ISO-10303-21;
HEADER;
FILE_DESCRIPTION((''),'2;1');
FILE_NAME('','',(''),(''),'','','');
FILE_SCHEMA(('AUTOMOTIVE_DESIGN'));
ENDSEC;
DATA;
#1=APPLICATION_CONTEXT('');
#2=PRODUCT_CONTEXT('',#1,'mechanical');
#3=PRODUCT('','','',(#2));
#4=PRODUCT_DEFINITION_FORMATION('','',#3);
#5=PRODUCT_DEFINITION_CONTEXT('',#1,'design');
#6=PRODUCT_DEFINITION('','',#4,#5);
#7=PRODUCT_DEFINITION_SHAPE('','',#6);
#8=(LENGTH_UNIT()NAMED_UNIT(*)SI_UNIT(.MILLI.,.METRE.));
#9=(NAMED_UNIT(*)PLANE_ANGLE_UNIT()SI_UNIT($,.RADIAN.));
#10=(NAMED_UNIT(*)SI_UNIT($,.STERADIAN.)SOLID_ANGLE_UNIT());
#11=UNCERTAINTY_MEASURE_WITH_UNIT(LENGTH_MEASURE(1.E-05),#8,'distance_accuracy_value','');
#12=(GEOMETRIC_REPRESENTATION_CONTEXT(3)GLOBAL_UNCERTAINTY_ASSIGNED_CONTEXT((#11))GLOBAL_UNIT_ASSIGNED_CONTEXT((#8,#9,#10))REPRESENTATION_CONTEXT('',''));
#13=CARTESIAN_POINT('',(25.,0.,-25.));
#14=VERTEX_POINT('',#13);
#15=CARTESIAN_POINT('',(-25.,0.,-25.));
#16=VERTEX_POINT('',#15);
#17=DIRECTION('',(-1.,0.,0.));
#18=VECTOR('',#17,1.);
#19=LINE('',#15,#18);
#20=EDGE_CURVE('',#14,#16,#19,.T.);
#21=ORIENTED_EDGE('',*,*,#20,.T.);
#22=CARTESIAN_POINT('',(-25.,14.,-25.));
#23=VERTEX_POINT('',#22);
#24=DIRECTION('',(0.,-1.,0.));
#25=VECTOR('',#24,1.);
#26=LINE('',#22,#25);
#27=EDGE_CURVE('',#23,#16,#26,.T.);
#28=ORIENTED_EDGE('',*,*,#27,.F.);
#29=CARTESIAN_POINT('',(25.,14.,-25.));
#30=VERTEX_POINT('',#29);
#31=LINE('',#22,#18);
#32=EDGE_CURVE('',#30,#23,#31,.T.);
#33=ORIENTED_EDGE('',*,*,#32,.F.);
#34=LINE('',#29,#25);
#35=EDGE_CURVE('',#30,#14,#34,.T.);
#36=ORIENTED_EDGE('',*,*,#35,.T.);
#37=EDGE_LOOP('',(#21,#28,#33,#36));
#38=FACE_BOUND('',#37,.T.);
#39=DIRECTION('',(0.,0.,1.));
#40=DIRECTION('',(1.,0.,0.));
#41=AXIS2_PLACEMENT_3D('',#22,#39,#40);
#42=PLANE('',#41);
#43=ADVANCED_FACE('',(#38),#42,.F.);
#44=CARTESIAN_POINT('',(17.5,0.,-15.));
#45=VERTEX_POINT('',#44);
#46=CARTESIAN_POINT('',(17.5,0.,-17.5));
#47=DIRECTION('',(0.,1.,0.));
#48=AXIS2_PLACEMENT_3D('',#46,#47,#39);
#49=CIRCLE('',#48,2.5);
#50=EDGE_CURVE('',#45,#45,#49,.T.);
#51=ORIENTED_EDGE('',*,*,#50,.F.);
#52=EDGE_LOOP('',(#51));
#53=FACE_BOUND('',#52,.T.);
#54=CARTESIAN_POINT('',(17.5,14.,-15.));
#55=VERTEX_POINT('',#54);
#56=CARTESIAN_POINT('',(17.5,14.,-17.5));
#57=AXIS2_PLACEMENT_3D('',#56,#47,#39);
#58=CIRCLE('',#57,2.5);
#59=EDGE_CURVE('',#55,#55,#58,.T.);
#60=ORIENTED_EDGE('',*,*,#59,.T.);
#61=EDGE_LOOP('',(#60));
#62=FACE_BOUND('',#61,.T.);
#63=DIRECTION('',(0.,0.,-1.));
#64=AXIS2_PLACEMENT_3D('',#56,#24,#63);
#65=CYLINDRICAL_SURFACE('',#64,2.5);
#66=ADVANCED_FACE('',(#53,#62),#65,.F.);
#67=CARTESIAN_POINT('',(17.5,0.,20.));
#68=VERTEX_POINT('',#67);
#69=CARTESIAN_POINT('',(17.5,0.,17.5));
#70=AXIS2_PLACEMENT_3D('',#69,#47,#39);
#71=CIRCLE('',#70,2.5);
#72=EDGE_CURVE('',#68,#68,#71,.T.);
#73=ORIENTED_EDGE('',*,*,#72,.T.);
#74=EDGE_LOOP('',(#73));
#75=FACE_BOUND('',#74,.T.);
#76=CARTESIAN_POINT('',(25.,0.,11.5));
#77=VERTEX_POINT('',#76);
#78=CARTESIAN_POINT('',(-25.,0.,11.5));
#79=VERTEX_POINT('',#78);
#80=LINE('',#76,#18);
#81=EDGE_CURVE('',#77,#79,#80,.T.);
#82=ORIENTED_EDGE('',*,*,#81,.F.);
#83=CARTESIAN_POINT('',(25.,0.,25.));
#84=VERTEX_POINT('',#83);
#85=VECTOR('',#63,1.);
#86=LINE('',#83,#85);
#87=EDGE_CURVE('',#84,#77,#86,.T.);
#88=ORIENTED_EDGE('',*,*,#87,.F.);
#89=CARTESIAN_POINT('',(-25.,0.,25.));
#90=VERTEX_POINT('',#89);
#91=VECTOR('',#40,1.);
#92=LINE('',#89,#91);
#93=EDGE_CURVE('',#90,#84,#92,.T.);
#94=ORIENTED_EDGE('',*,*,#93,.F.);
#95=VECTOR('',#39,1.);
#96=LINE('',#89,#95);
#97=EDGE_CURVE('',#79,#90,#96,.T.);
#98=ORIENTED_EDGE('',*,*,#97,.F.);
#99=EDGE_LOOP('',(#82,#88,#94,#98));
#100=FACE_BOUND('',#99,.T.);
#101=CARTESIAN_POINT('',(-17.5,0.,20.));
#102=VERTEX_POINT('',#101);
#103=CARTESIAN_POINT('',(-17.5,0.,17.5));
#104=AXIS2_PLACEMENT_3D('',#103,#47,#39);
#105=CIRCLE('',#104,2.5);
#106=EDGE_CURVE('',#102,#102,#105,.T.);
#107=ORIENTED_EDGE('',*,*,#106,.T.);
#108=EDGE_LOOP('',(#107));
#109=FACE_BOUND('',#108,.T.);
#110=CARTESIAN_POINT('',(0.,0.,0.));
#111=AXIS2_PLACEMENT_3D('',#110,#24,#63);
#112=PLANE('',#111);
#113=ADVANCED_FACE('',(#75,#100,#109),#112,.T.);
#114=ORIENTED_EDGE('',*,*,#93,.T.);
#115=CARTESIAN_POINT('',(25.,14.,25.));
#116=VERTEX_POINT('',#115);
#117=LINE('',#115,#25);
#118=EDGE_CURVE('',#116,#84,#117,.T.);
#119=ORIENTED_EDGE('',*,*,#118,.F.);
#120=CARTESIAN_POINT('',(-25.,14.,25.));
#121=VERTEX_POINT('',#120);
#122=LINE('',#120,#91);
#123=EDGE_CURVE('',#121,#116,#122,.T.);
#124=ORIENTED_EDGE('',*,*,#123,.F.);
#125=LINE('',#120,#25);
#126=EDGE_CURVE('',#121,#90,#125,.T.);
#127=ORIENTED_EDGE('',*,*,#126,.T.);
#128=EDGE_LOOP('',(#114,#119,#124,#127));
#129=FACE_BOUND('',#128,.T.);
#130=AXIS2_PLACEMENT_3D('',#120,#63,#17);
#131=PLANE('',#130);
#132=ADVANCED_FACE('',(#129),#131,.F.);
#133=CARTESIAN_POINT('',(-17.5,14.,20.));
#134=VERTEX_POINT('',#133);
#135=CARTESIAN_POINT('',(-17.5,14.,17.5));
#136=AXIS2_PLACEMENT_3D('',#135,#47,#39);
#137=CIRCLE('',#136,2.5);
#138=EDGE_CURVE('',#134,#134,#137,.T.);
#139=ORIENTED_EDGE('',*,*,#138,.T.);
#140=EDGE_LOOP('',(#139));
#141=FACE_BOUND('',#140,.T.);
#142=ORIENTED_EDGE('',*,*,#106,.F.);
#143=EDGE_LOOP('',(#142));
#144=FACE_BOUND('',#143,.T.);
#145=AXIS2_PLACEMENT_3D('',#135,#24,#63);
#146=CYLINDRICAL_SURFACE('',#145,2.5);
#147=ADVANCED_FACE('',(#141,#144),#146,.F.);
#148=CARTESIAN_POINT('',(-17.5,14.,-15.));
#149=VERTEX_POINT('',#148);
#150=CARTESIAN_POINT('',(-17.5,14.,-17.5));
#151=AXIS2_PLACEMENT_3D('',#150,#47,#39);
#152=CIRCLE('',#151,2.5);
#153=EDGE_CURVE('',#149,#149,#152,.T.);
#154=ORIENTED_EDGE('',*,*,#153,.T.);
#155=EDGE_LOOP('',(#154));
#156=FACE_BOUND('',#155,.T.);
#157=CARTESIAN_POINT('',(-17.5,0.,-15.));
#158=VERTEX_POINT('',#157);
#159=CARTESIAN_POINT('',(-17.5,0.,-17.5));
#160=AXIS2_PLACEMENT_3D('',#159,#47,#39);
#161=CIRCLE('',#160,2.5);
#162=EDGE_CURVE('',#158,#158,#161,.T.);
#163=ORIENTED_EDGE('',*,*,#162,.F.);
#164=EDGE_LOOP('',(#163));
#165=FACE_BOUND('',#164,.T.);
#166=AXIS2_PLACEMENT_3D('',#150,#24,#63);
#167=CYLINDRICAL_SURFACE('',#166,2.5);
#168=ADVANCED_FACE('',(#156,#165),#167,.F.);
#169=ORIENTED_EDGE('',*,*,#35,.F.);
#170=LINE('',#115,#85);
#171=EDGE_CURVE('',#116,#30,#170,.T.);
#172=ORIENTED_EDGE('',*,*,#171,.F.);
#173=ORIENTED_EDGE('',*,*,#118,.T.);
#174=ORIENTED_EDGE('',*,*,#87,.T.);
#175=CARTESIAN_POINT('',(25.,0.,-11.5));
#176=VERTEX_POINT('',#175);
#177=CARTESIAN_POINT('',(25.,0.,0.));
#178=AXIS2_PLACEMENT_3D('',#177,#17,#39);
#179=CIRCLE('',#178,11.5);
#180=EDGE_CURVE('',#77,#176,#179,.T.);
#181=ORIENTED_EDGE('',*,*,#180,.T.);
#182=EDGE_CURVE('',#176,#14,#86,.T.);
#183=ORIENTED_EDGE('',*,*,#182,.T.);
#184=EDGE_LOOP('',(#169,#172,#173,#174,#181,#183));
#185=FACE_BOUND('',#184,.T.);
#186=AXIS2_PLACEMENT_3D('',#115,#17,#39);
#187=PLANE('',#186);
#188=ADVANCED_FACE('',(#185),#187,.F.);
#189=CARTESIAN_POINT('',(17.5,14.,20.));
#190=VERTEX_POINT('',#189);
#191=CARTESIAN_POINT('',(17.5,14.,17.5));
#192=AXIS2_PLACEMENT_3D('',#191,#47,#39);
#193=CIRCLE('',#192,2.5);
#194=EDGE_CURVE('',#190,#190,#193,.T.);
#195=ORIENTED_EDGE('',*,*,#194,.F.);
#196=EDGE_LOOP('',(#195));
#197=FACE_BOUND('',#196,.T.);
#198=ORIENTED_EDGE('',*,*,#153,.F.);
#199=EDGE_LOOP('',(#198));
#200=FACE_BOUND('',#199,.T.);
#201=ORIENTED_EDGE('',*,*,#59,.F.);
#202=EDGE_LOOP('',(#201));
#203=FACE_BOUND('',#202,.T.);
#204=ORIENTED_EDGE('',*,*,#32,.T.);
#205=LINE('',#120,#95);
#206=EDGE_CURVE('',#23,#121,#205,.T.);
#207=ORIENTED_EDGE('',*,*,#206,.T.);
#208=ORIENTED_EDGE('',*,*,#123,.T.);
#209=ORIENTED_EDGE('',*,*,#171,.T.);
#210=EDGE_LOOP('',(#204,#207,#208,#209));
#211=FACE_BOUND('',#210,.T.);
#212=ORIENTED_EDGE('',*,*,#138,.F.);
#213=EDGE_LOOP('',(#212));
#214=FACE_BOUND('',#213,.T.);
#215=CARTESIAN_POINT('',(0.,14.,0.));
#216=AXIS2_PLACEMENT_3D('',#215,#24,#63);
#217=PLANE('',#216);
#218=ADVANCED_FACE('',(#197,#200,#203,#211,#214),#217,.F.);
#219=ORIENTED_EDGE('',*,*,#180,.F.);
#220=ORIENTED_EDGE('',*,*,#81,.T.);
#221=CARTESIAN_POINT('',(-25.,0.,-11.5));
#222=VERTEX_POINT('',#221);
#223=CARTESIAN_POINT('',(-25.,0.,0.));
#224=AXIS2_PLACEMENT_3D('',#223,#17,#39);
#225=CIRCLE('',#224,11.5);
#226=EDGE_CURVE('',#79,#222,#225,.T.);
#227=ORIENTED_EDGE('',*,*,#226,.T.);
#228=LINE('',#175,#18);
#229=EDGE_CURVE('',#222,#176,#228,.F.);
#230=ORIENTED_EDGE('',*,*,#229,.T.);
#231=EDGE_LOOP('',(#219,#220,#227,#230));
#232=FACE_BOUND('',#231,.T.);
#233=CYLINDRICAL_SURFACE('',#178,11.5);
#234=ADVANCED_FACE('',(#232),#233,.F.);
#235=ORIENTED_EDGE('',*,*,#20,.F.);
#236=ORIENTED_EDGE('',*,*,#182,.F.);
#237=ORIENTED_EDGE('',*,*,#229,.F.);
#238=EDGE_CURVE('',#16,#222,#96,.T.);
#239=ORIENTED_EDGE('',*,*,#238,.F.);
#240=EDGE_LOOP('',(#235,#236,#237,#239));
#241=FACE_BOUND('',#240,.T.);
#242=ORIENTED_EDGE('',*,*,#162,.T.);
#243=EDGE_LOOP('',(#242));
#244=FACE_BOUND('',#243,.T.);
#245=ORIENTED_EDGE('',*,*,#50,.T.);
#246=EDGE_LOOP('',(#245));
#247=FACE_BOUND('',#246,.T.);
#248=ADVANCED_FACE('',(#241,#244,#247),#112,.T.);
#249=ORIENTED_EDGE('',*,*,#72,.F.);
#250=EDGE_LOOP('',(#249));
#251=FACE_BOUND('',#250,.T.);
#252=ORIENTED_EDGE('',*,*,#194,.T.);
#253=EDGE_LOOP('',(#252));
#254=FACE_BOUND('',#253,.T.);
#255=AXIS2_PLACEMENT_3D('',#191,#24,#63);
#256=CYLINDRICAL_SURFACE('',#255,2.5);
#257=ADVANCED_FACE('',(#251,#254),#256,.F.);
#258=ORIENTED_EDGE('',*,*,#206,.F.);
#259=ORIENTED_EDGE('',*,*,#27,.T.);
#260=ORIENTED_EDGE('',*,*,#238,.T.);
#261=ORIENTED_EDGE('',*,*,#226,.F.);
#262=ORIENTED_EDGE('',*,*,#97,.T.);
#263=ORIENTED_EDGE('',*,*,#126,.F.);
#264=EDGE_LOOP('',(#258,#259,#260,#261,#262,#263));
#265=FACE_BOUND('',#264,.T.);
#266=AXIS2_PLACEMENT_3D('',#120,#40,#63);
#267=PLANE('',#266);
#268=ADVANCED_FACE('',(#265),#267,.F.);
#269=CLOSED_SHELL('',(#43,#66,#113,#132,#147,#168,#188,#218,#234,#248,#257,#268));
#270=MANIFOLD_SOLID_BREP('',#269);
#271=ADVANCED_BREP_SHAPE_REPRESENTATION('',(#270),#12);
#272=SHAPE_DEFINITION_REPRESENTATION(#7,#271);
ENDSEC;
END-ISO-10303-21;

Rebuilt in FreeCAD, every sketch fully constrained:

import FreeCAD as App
import Part
import Sketcher
Q = App.Units.Quantity


def add_polygon(sketch, points):
    """Adds a closed chain of lines whose ends are joined by coincident constraints."""
    first, n = sketch.GeometryCount, len(points)
    for a, b in zip(points, points[1:] + points[:1]):
        sketch.addGeometry(Part.LineSegment(App.Vector(*a, 0), App.Vector(*b, 0)), False)
    for i in range(n):
        sketch.addConstraint(Sketcher.Constraint("Coincident", first + i, 2, first + (i + 1) % n, 1))

doc = App.newDocument("Part")
body = doc.addObject("PartDesign::Body", "Body")

# Sketch on XZ plane
sketch1 = doc.addObject("Sketcher::SketchObject", "Sketch")
body.addObject(sketch1)
sketch1.AttachmentSupport = (doc.XZ_Plane, [""])
sketch1.MapMode = "FlatFace"
add_polygon(sketch1, [(-25, -25), (-25, 25), (25, 25), (25, -25)])  # lines 0-3
sketch1.addGeometry(Part.Circle(App.Vector(-17.5, 17.5, 0), App.Vector(0, 0, 1), 2.5), False)  # 4
sketch1.addGeometry(Part.Circle(App.Vector(17.5, 17.5, 0), App.Vector(0, 0, 1), 2.5), False)  # 5
sketch1.addGeometry(Part.Circle(App.Vector(-17.5, -17.5, 0), App.Vector(0, 0, 1), 2.5), False)  # 6
sketch1.addGeometry(Part.Circle(App.Vector(17.5, -17.5, 0), App.Vector(0, 0, 1), 2.5), False)  # 7
sketch1.addConstraint(Sketcher.Constraint("Vertical", 0))
sketch1.addConstraint(Sketcher.Constraint("Horizontal", 1))
sketch1.addConstraint(Sketcher.Constraint("Vertical", 2))
sketch1.addConstraint(Sketcher.Constraint("Horizontal", 3))
sketch1.addConstraint(Sketcher.Constraint("Equal", 4, 5))
sketch1.addConstraint(Sketcher.Constraint("Equal", 5, 6))
sketch1.addConstraint(Sketcher.Constraint("Equal", 6, 7))
sketch1.addConstraint(Sketcher.Constraint("Symmetric", 5, 3, 6, 3, -1, 1))
sketch1.addConstraint(Sketcher.Constraint("Symmetric", 4, 3, 7, 3, -1, 1))
sketch1.addConstraint(Sketcher.Constraint("Symmetric", 0, 2, 2, 2, -1, 1))
sketch1.addConstraint(Sketcher.Constraint("Symmetric", 4, 3, 5, 3, -2))
sketch1.addConstraint(Sketcher.Constraint("Equal", 3, 0))
sketch1.addConstraint(Sketcher.Constraint("Diameter", 4, Q("5 mm")))
sketch1.addConstraint(Sketcher.Constraint("DistanceX", 1, 1, 1, 2, Q("50 mm")))
sketch1.addConstraint(Sketcher.Constraint("DistanceX", 4, 3, 5, 3, Q("35 mm")))
sketch1.addConstraint(Sketcher.Constraint("DistanceY", 6, 3, 4, 3, Q("35 mm")))
pad1 = doc.addObject("PartDesign::Pad", "Pad")
body.addObject(pad1)
pad1.Profile = sketch1
pad1.Length = 14
pad1.Reversed = True

# Sketch on YZ plane
sketch2 = doc.addObject("Sketcher::SketchObject", "Sketch001")
body.addObject(sketch2)
sketch2.AttachmentSupport = (doc.YZ_Plane, [""])
sketch2.MapMode = "FlatFace"
sketch2.AttachmentOffset = App.Placement(App.Vector(0, 0, -25), App.Rotation())
sketch2.addGeometry(Part.Circle(App.Vector(0, 0, 0), App.Vector(0, 0, 1), 12), False)
sketch2.addConstraint(Sketcher.Constraint("Coincident", 0, 3, -1, 1))
sketch2.addConstraint(Sketcher.Constraint("Diameter", 0, Q("23 mm")))
pocket1 = doc.addObject("PartDesign::Pocket", "Pocket")
body.addObject(pocket1)
pocket1.Profile = sketch2
pocket1.Type = "ThroughAll"
pocket1.Reversed = True

doc.recompute()
